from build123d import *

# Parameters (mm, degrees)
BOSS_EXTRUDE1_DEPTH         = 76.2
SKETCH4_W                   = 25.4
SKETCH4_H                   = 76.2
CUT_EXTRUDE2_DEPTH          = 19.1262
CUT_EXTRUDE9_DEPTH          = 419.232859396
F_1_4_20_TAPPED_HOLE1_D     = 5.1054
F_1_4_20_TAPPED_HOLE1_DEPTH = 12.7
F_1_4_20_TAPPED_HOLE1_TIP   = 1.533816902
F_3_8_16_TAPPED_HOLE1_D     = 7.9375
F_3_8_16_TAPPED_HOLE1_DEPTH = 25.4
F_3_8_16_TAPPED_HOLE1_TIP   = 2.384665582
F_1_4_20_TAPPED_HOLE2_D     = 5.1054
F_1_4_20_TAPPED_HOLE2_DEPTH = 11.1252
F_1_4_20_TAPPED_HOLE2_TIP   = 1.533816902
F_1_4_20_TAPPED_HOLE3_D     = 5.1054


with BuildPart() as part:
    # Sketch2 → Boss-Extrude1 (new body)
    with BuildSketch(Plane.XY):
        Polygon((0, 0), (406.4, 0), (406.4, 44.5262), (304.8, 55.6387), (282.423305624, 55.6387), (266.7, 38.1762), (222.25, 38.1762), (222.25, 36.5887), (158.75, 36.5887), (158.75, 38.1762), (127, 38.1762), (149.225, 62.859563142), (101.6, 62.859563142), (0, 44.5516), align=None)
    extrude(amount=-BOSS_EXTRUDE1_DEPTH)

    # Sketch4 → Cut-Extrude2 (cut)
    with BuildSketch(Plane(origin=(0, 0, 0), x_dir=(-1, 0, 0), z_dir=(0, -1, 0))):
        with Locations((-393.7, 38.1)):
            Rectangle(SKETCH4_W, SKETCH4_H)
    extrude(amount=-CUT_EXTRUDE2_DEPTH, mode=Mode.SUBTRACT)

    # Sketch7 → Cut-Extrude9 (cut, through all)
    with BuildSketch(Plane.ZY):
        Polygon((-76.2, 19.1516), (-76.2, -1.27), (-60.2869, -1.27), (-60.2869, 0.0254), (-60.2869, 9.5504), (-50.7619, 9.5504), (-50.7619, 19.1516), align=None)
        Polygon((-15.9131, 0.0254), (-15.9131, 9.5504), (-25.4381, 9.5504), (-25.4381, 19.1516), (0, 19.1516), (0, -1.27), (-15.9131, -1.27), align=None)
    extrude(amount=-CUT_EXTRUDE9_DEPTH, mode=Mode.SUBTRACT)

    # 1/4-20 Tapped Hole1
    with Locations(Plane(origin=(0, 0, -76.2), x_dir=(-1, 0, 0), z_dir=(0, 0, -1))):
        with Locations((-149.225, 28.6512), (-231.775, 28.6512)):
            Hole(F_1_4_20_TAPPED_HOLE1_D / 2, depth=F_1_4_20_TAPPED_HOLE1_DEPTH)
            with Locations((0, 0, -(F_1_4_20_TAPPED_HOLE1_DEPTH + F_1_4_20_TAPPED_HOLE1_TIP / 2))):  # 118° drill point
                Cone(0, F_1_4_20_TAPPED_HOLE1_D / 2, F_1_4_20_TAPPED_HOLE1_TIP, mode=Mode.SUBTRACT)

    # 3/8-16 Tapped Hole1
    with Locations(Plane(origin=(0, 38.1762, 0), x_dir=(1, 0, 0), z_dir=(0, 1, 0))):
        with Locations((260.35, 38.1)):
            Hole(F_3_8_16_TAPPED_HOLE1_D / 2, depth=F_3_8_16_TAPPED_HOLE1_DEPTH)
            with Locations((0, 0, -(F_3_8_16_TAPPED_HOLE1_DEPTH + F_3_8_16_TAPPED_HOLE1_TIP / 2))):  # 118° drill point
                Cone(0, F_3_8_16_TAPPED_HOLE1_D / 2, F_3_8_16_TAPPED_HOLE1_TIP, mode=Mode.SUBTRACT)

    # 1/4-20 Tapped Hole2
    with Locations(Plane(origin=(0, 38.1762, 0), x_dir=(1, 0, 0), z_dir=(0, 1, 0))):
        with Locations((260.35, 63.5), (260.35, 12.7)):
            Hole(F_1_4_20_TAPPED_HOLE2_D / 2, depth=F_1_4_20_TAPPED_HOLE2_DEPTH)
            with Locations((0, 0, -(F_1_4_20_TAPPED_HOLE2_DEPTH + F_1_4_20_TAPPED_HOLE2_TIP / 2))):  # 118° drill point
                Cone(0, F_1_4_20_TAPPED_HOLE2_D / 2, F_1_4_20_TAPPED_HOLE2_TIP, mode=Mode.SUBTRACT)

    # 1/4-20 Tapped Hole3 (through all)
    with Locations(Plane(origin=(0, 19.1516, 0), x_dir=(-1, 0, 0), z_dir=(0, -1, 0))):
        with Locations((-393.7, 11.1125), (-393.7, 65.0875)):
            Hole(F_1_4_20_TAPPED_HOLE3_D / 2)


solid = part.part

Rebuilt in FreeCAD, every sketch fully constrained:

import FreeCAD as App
import Part
import Sketcher

V = App.Vector
Q = App.Units.Quantity

doc = App.newDocument("Part")
body = doc.addObject("PartDesign::Body", "Body")

# Sketch on XY plane
sketch1 = body.newObject("Sketcher::SketchObject", "Sketch")
sketch1.AttachmentSupport = (doc.getObject("XY_Plane"), [""])
sketch1.MapMode = "FlatFace"
sketch1.addGeometry([
    Part.LineSegment(V(0, 0, 0), V(406.4, 0, 0)),  # 0
    Part.LineSegment(V(406.4, 0, 0), V(406.4, 44.5, 0)),  # 1
    Part.LineSegment(V(406.4, 44.5, 0), V(304.8, 55.6, 0)),  # 2
    Part.LineSegment(V(304.8, 55.6, 0), V(282.4, 55.6, 0)),  # 3
    Part.LineSegment(V(282.4, 55.6, 0), V(266.7, 38.2, 0)),  # 4
    Part.LineSegment(V(266.7, 38.2, 0), V(222.2, 38.2, 0)),  # 5
    Part.LineSegment(V(222.2, 38.2, 0), V(222.2, 36.6, 0)),  # 6
    Part.LineSegment(V(222.2, 36.6, 0), V(158.8, 36.6, 0)),  # 7
    Part.LineSegment(V(158.8, 36.6, 0), V(158.8, 38.2, 0)),  # 8
    Part.LineSegment(V(158.8, 38.2, 0), V(127, 38.2, 0)),  # 9
    Part.LineSegment(V(127, 38.2, 0), V(149.2, 62.9, 0)),  # 10
    Part.LineSegment(V(149.2, 62.9, 0), V(101.6, 62.9, 0)),  # 11
    Part.LineSegment(V(101.6, 62.9, 0), V(0, 44.6, 0)),  # 12
    Part.LineSegment(V(0, 44.6, 0), V(0, 0, 0)),  # 13
], False)
sketch1.addConstraint([
    Sketcher.Constraint("Coincident", 0, 2, 1, 1),
    Sketcher.Constraint("Coincident", 1, 2, 2, 1),
    Sketcher.Constraint("Coincident", 2, 2, 3, 1),
    Sketcher.Constraint("Coincident", 3, 2, 4, 1),
    Sketcher.Constraint("Coincident", 4, 2, 5, 1),
    Sketcher.Constraint("Coincident", 5, 2, 6, 1),
    Sketcher.Constraint("Coincident", 6, 2, 7, 1),
    Sketcher.Constraint("Coincident", 7, 2, 8, 1),
    Sketcher.Constraint("Coincident", 8, 2, 9, 1),
    Sketcher.Constraint("Coincident", 9, 2, 10, 1),
    Sketcher.Constraint("Coincident", 10, 2, 11, 1),
    Sketcher.Constraint("Coincident", 11, 2, 12, 1),
    Sketcher.Constraint("Coincident", 12, 2, 13, 1),
    Sketcher.Constraint("Coincident", 13, 2, 0, 1),
    Sketcher.Constraint("Horizontal", 0),
    Sketcher.Constraint("Vertical", 1),
    Sketcher.Constraint("Horizontal", 3),
    Sketcher.Constraint("Horizontal", 5),
    Sketcher.Constraint("Vertical", 6),
    Sketcher.Constraint("Horizontal", 7),
    Sketcher.Constraint("Vertical", 8),
    Sketcher.Constraint("Horizontal", 9),
    Sketcher.Constraint("Horizontal", 11),
    Sketcher.Constraint("Vertical", 13),
    Sketcher.Constraint("Coincident", 13, 2, -1, 1),
    Sketcher.Constraint("Parallel", 4, 10),
    Sketcher.Constraint("Horizontal", 5, 2, 8, 2),
    Sketcher.Constraint("DistanceX", 0, 1, 0, 2, Q("16 in")),
    Sketcher.Constraint("DistanceX", 7, 2, 7, 1, Q("2.5 in")),
    Sketcher.Constraint("DistanceX", -1, 1, 2, 2, Q("12 in")),
    Sketcher.Constraint("DistanceX", -1, 1, 9, 2, Q("5 in")),
    Sketcher.Constraint("DistanceX", -1, 1, 11, 2, Q("4 in")),
    Sketcher.Constraint("Angle", 4, Q("-132 deg")),
    Sketcher.Constraint("DistanceX", 5, 2, 5, 1, Q("1.75 in")),
    Sketcher.Constraint("DistanceX", 9, 2, 9, 1, Q("1.25 in")),
    Sketcher.Constraint("DistanceX", 11, 2, 11, 1, Q("1.875 in")),
    Sketcher.Constraint("DistanceY", 1, 1, 1, 2, Q("1.753 in")),
    Sketcher.Constraint("DistanceY", 6, 2, 6, 1, Q("0.0625 in")),
    Sketcher.Constraint("DistanceY", 13, 2, 13, 1, Q("1.754 in")),
    Sketcher.Constraint("DistanceY", 4, 2, 1, 2, Q("0.25 in")),
    Sketcher.Constraint("DistanceY", 6, 2, 3, 2, Q("0.75 in")),
])
pad1 = body.newObject("PartDesign::Pad", "Pad")
pad1.Profile = sketch1
pad1.Length = Q("3 in")
pad1.Reversed = True

# Sketch on XZ plane
sketch2 = body.newObject("Sketcher::SketchObject", "Sketch001")
sketch2.AttachmentSupport = (doc.getObject("XZ_Plane"), [""])
sketch2.MapMode = "FlatFace"
sketch2.addGeometry([
    Part.LineSegment(V(406, -76, 0), V(406, 0, 0)),
    Part.LineSegment(V(406, 0, 0), V(381, 0, 0)),
    Part.LineSegment(V(381, 0, 0), V(381, -76, 0)),
    Part.LineSegment(V(381, -76, 0), V(406, -76, 0)),
], False)
sketch2.addConstraint([
    Sketcher.Constraint("Coincident", 0, 2, 1, 1),
    Sketcher.Constraint("Coincident", 1, 2, 2, 1),
    Sketcher.Constraint("Coincident", 2, 2, 3, 1),
    Sketcher.Constraint("Coincident", 3, 2, 0, 1),
    Sketcher.Constraint("Vertical", 0),
    Sketcher.Constraint("Horizontal", 1),
    Sketcher.Constraint("Vertical", 2),
    Sketcher.Constraint("Horizontal", 3),
    Sketcher.Constraint("PointOnObject", 0, 2, -1),
    Sketcher.Constraint("DistanceX", 1, 2, 1, 1, Q("1 in")),
    Sketcher.Constraint("DistanceY", 0, 1, 0, 2, Q("3 in")),
    Sketcher.Constraint("DistanceX", -1, 1, 0, 2, Q("16 in")),
])
pocket1 = body.newObject("PartDesign::Pocket", "Pocket")
pocket1.Profile = sketch2
pocket1.Length = Q("0.753 in")

# Sketch on YZ plane
sketch3 = body.newObject("Sketcher::SketchObject", "Sketch002")
sketch3.AttachmentSupport = (doc.getObject("YZ_Plane"), [""])
sketch3.MapMode = "FlatFace"
sketch3.addGeometry([
    Part.LineSegment(V(19, -76, 0), V(-1, -76, 0)),  # 0
    Part.LineSegment(V(-1, -76, 0), V(-1, -60, 0)),  # 1
    Part.LineSegment(V(-1, -60, 0), V(10, -60, 0)),  # 2
    Part.LineSegment(V(10, -60, 0), V(10, -51, 0)),  # 3
    Part.LineSegment(V(10, -51, 0), V(19, -51, 0)),  # 4
    Part.LineSegment(V(19, -51, 0), V(19, -76, 0)),  # 5
    Part.LineSegment(V(10, -16, 0), V(-1, -16, 0)),  # 6
    Part.LineSegment(V(-1, -16, 0), V(-1, 0, 0)),  # 7
    Part.LineSegment(V(-1, 0, 0), V(19, 0, 0)),  # 8
    Part.LineSegment(V(19, 0, 0), V(19, -25, 0)),  # 9
    Part.LineSegment(V(19, -25, 0), V(10, -25, 0)),  # 10
    Part.LineSegment(V(10, -25, 0), V(10, -16, 0)),  # 11
], False)
sketch3.addConstraint([
    Sketcher.Constraint("Coincident", 0, 2, 1, 1),
    Sketcher.Constraint("Coincident", 1, 2, 2, 1),
    Sketcher.Constraint("Coincident", 2, 2, 3, 1),
    Sketcher.Constraint("Coincident", 3, 2, 4, 1),
    Sketcher.Constraint("Coincident", 4, 2, 5, 1),
    Sketcher.Constraint("Coincident", 5, 2, 0, 1),
    Sketcher.Constraint("Coincident", 6, 2, 7, 1),
    Sketcher.Constraint("Coincident", 7, 2, 8, 1),
    Sketcher.Constraint("Coincident", 8, 2, 9, 1),
    Sketcher.Constraint("Coincident", 9, 2, 10, 1),
    Sketcher.Constraint("Coincident", 10, 2, 11, 1),
    Sketcher.Constraint("Coincident", 11, 2, 6, 1),
    Sketcher.Constraint("Horizontal", 0),
    Sketcher.Constraint("Vertical", 1),
    Sketcher.Constraint("Horizontal", 2),
    Sketcher.Constraint("Vertical", 3),
    Sketcher.Constraint("Horizontal", 4),
    Sketcher.Constraint("Vertical", 5),
    Sketcher.Constraint("Horizontal", 6),
    Sketcher.Constraint("Vertical", 7),
    Sketcher.Constraint("Horizontal", 8),
    Sketcher.Constraint("Vertical", 9),
    Sketcher.Constraint("Horizontal", 10),
    Sketcher.Constraint("Vertical", 11),
    Sketcher.Constraint("PointOnObject", 7, 2, -1),
    Sketcher.Constraint("Vertical", 1, 2, 6, 2),
    Sketcher.Constraint("Vertical", 5, 2, 8, 2),
    Sketcher.Constraint("Vertical", 3, 2, 10, 2),
    Sketcher.Constraint("Equal", 1, 7),
    Sketcher.Constraint("Equal", 5, 9),
    Sketcher.Constraint("DistanceY", 0, 2, -1, 1, Q("3 in")),
    Sketcher.Constraint("DistanceX", 0, 2, 0, 1, Q("0.804 in")),
    Sketcher.Constraint("DistanceX", 2, 1, 2, 2, Q("0.426 in")),
    Sketcher.Constraint("DistanceY", 3, 1, 3, 2, Q("0.375 in")),
    Sketcher.Constraint("DistanceX", 0, 2, -1, 1, Q("0.05 in")),
    Sketcher.Constraint("DistanceY", 1, 1, 1, 2, Q("0.6265 in")),
])
pocket2 = body.newObject("PartDesign::Pocket", "Pocket001")
pocket2.Profile = sketch3
pocket2.Type = "ThroughAll"
pocket2.Reversed = True

# Sketch on XY plane
sketch4 = body.newObject("Sketcher::SketchObject", "Sketch003")
sketch4.AttachmentSupport = (doc.getObject("XY_Plane"), [""])
sketch4.MapMode = "FlatFace"
sketch4.AttachmentOffset = App.Placement(V(0, 0, -3 * 25.4), App.Rotation())
sketch4.addGeometry([
    Part.Circle(V(149.2, 28.7, 0), V(0, 0, 1), 2.6),
    Part.Circle(V(231.8, 28.7, 0), V(0, 0, 1), 2.6),
], False)
sketch4.addConstraint([
    Sketcher.Constraint("Equal", 0, 1),
    Sketcher.Constraint("Horizontal", 0, 3, 1, 3),
    Sketcher.Constraint("Diameter", 0, Q("0.201 in")),
    Sketcher.Constraint("DistanceX", 0, 3, 1, 3, Q("3.25 in")),
    Sketcher.Constraint("DistanceX", -1, 1, 0, 3, Q("5.875 in")),
    Sketcher.Constraint("DistanceY", -1, 1, 0, 3, Q("1.128 in")),
])
doc.recompute()
hole = body.newObject("PartDesign::Hole", "Hole")
hole.Profile = sketch4
hole.ThreadType = "None"
hole.Diameter = Q("0.201 in")
hole.DepthType = "Dimension"
hole.Depth = Q("0.5 in")
hole.DrillPoint = "Angled"
hole.DrillPointAngle = 118
hole.Reversed = True

# Sketch on XZ plane
sketch5 = body.newObject("Sketcher::SketchObject", "Sketch004")
sketch5.AttachmentSupport = (doc.getObject("XZ_Plane"), [""])
sketch5.MapMode = "FlatFace"
sketch5.AttachmentOffset = App.Placement(V(0, 0, -1.503 * 25.4), App.Rotation())
sketch5.addGeometry(Part.Circle(V(260.4, -38.1, 0), V(0, 0, 1), 4), False)
sketch5.addConstraint([
    Sketcher.Constraint("Diameter", 0, Q("0.3125 in")),
    Sketcher.Constraint("DistanceY", 0, 3, -1, 1, Q("1.5 in")),
    Sketcher.Constraint("DistanceX", -1, 1, 0, 3, Q("10.25 in")),
])
doc.recompute()
hole2 = body.newObject("PartDesign::Hole", "Hole001")
hole2.Profile = sketch5
hole2.ThreadType = "None"
hole2.Diameter = Q("0.3125 in")
hole2.DepthType = "Dimension"
hole2.Depth = Q("1 in")
hole2.DrillPoint = "Angled"
hole2.DrillPointAngle = 118
hole2.Reversed = True

# Sketch on XZ plane
sketch6 = body.newObject("Sketcher::SketchObject", "Sketch005")
sketch6.AttachmentSupport = (doc.getObject("XZ_Plane"), [""])
sketch6.MapMode = "FlatFace"
sketch6.AttachmentOffset = App.Placement(V(0, 0, -1.503 * 25.4), App.Rotation())
sketch6.addGeometry([
    Part.Circle(V(260.4, -63.5, 0), V(0, 0, 1), 2.6),
    Part.Circle(V(260.4, -12.7, 0), V(0, 0, 1), 2.6),
], False)
sketch6.addConstraint([
    Sketcher.Constraint("Equal", 0, 1),
    Sketcher.Constraint("Vertical", 0, 3, 1, 3),
    Sketcher.Constraint("Diameter", 0, Q("0.201 in")),
    Sketcher.Constraint("DistanceY", 0, 3, 1, 3, Q("2 in")),
    Sketcher.Constraint("DistanceY", 0, 3, -1, 1, Q("2.5 in")),
    Sketcher.Constraint("DistanceX", -1, 1, 0, 3, Q("10.25 in")),
])
doc.recompute()
hole3 = body.newObject("PartDesign::Hole", "Hole002")
hole3.Profile = sketch6
hole3.ThreadType = "None"
hole3.Diameter = Q("0.201 in")
hole3.DepthType = "Dimension"
hole3.Depth = Q("0.438 in")
hole3.DrillPoint = "Angled"
hole3.DrillPointAngle = 118
hole3.Reversed = True

# Sketch on XZ plane
sketch7 = body.newObject("Sketcher::SketchObject", "Sketch006")
sketch7.AttachmentSupport = (doc.getObject("XZ_Plane"), [""])
sketch7.MapMode = "FlatFace"
sketch7.AttachmentOffset = App.Placement(V(0, 0, -0.754 * 25.4), App.Rotation())
sketch7.addGeometry([
    Part.Circle(V(393.7, -11.1, 0), V(0, 0, 1), 2.6),
    Part.Circle(V(393.7, -65.1, 0), V(0, 0, 1), 2.6),
], False)
sketch7.addConstraint([
    Sketcher.Constraint("Equal", 0, 1),
    Sketcher.Constraint("Vertical", 0, 3, 1, 3),
    Sketcher.Constraint("Diameter", 0, Q("0.201 in")),
    Sketcher.Constraint("DistanceX", -1, 1, 0, 3, Q("15.5 in")),
    Sketcher.Constraint("DistanceY", 0, 3, -1, 1, Q("0.4375 in")),
    Sketcher.Constraint("DistanceY", 1, 3, -1, 1, Q("2.5625 in")),
])
doc.recompute()
hole4 = body.newObject("PartDesign::Hole", "Hole003")
hole4.Profile = sketch7
hole4.ThreadType = "None"
hole4.Diameter = Q("0.201 in")
hole4.DepthType = "ThroughAll"

doc.recompute()
